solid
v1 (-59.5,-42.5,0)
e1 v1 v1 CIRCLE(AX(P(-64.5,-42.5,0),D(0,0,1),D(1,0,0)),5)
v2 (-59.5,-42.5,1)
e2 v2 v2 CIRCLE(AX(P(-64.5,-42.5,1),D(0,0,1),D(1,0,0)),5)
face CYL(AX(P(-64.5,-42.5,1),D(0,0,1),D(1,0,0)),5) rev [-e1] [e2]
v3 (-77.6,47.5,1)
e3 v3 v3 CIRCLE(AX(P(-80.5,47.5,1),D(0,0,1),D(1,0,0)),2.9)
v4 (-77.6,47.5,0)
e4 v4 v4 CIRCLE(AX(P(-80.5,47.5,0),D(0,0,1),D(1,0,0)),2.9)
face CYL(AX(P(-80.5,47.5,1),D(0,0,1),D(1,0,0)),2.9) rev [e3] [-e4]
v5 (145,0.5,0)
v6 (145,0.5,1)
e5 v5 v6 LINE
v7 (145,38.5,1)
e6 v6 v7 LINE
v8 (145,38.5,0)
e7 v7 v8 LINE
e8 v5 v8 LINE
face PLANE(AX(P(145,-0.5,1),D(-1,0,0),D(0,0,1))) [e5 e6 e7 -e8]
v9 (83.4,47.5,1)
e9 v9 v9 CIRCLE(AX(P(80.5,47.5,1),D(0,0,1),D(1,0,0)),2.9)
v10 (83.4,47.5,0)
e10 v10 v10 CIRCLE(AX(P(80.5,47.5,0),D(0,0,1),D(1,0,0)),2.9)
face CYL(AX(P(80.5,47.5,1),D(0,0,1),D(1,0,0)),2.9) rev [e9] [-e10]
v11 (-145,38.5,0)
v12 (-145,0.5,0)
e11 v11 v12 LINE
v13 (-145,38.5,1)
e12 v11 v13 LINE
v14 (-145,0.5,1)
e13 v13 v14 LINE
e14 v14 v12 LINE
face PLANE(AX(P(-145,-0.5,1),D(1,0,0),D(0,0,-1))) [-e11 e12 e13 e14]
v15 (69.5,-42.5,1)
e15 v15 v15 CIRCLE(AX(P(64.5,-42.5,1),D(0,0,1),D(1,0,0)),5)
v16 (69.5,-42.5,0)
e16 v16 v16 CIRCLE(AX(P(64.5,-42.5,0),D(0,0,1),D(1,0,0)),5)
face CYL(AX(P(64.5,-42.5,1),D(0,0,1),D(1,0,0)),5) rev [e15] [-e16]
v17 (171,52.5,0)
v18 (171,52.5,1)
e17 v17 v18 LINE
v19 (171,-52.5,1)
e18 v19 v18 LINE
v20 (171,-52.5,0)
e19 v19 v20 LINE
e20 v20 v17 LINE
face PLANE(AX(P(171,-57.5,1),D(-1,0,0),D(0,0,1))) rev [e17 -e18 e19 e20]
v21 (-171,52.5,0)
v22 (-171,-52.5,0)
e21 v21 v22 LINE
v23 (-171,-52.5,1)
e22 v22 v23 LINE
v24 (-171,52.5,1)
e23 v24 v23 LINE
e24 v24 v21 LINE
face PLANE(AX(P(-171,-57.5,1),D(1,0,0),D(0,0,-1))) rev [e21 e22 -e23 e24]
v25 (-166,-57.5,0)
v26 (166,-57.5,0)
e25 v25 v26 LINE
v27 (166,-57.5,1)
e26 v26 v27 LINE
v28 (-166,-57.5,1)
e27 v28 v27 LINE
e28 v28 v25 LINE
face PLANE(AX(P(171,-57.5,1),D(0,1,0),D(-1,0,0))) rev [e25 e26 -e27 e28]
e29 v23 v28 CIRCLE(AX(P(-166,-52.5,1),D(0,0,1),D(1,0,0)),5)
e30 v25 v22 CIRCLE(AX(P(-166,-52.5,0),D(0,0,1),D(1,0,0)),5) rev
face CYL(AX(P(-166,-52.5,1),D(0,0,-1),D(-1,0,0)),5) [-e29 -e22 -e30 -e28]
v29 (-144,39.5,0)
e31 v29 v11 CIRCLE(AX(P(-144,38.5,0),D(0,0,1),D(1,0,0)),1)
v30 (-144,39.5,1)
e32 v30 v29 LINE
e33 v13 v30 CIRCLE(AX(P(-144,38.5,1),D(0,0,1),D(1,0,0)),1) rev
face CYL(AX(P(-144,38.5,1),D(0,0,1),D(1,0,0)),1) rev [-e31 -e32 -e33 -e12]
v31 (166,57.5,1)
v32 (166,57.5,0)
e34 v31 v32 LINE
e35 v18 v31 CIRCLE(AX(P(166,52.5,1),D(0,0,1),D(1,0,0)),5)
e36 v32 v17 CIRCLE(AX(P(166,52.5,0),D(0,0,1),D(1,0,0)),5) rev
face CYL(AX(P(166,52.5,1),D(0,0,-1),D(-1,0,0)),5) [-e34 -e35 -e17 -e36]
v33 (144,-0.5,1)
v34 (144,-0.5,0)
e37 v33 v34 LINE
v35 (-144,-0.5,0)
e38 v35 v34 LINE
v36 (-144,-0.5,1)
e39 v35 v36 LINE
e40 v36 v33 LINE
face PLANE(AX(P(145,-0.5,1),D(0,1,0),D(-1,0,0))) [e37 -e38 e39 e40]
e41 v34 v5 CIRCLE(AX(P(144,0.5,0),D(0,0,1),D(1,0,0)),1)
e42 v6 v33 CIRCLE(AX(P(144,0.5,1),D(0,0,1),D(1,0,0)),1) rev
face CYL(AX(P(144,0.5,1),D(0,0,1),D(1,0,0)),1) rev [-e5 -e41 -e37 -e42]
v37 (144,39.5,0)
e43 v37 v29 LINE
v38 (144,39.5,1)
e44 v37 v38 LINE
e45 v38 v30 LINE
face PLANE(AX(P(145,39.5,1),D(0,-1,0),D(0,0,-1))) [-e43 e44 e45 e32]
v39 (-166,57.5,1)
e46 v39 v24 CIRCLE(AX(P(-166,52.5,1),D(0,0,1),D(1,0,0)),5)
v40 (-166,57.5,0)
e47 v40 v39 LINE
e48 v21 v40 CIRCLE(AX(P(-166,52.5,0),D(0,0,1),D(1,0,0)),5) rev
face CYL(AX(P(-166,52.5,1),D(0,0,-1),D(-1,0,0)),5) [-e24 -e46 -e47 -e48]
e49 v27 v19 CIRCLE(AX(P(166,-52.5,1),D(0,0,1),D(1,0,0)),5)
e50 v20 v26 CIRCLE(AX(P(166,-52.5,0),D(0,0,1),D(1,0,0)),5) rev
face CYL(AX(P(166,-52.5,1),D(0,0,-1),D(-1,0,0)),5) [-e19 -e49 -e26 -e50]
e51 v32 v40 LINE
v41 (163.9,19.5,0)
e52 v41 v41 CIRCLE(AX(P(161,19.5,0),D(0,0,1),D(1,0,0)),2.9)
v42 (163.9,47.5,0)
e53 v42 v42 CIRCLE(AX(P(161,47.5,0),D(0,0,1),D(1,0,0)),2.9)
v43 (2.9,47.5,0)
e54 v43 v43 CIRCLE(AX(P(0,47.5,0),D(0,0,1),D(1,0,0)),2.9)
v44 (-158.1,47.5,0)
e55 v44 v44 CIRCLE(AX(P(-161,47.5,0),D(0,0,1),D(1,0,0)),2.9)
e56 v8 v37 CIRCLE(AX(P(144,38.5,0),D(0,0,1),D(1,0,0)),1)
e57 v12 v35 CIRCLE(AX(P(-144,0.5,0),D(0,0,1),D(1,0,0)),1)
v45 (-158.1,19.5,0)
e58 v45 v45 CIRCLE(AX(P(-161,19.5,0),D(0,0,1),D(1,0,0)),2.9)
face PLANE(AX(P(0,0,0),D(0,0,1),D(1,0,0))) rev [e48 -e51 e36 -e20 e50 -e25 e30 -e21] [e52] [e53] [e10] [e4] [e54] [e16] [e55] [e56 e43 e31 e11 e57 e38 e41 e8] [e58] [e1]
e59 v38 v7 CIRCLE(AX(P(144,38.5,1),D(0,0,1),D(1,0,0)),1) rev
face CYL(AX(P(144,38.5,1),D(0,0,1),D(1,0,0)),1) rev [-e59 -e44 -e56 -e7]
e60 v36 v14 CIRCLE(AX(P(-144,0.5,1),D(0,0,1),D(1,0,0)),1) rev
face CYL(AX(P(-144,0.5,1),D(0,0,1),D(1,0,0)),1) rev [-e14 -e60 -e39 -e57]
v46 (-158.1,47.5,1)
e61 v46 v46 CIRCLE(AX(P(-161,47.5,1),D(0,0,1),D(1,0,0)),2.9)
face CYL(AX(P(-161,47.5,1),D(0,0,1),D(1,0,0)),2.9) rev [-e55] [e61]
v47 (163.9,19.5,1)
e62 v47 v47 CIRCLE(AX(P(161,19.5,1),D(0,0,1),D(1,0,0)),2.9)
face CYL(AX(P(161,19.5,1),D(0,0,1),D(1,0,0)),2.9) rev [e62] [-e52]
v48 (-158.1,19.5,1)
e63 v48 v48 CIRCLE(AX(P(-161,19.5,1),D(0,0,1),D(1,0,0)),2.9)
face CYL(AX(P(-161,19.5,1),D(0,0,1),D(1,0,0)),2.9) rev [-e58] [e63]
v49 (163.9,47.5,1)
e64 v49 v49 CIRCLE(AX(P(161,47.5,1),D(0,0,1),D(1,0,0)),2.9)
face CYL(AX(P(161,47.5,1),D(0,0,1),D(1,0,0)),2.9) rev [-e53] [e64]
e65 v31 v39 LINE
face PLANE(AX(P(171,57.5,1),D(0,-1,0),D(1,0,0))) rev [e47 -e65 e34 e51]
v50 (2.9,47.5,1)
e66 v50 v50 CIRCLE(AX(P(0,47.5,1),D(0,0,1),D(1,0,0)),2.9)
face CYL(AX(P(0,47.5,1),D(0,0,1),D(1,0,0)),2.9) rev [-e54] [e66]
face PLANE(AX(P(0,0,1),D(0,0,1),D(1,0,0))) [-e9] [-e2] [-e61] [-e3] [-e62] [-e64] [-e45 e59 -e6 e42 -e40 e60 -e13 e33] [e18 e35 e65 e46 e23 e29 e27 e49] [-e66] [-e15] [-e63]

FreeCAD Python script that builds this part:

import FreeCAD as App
import Part
import Sketcher


def edges_at(feature, points):
    """Names of the edges that pass closest to the given points."""
    edges = feature.Shape.Edges
    near = lambda p: min(range(len(edges)), key=lambda i: edges[i].distToShape(Part.Vertex(*p))[0])
    return sorted({f"Edge{near(p) + 1}" for p in points})

doc = App.newDocument("Part")
body = doc.addObject("PartDesign::Body", "Body")

sketch1 = body.newObject("Sketcher::SketchObject", "Sketch")
sketch1.AttachmentSupport = (doc.getObject("XY_Plane"), [""])
sketch1.MapMode = "FlatFace"
sketch1.addGeometry(Part.LineSegment(App.Vector(-171, 58, 0), App.Vector(-171, -58, 0)), False)
sketch1.addGeometry(Part.LineSegment(App.Vector(-171, -58, 0), App.Vector(171, -58, 0)), False)
sketch1.addGeometry(Part.LineSegment(App.Vector(171, -58, 0), App.Vector(171, 58, 0)), False)
sketch1.addGeometry(Part.LineSegment(App.Vector(171, 58, 0), App.Vector(-171, 58, 0)), False)
sketch1.addGeometry(Part.LineSegment(App.Vector(145, 0, 0), App.Vector(-145, 0, 0)), False)
sketch1.addGeometry(Part.LineSegment(App.Vector(-145, 0, 0), App.Vector(-145, 40, 0)), False)
sketch1.addGeometry(Part.LineSegment(App.Vector(-145, 40, 0), App.Vector(145, 40, 0)), False)
sketch1.addGeometry(Part.LineSegment(App.Vector(145, 40, 0), App.Vector(145, 0, 0)), False)
sketch1.addConstraint(Sketcher.Constraint("Coincident", 0, 2, 1, 1))
sketch1.addConstraint(Sketcher.Constraint("Coincident", 1, 2, 2, 1))
sketch1.addConstraint(Sketcher.Constraint("Coincident", 2, 2, 3, 1))
sketch1.addConstraint(Sketcher.Constraint("Coincident", 3, 2, 0, 1))
sketch1.addConstraint(Sketcher.Constraint("Coincident", 4, 2, 5, 1))
sketch1.addConstraint(Sketcher.Constraint("Coincident", 5, 2, 6, 1))
sketch1.addConstraint(Sketcher.Constraint("Coincident", 6, 2, 7, 1))
sketch1.addConstraint(Sketcher.Constraint("Coincident", 7, 2, 4, 1))
sketch1.addConstraint(Sketcher.Constraint("Vertical", 0))
sketch1.addConstraint(Sketcher.Constraint("Horizontal", 1))
sketch1.addConstraint(Sketcher.Constraint("Vertical", 2))
sketch1.addConstraint(Sketcher.Constraint("Horizontal", 3))
sketch1.addConstraint(Sketcher.Constraint("Horizontal", 4))
sketch1.addConstraint(Sketcher.Constraint("Vertical", 5))
sketch1.addConstraint(Sketcher.Constraint("Horizontal", 6))
sketch1.addConstraint(Sketcher.Constraint("Vertical", 7))
sketch1.addConstraint(Sketcher.Constraint("Symmetric", 0, 2, 2, 2, -1, 1))
sketch1.addConstraint(Sketcher.Constraint("DistanceX", 1, 1, 1, 2, 342.0))
sketch1.addConstraint(Sketcher.Constraint("DistanceX", 4, 2, 4, 1, 290.0))
sketch1.addConstraint(Sketcher.Constraint("DistanceY", 0, 2, 0, 1, 115.0))
sketch1.addConstraint(Sketcher.Constraint("DistanceY", 5, 1, 5, 2, 40.0))
sketch1.addConstraint(Sketcher.Constraint("DistanceX", 4, 2, -1, 1, 145.0))
sketch1.addConstraint(Sketcher.Constraint("DistanceY", 0, 2, 4, 2, 57.0))
pad1 = body.newObject("PartDesign::Pad", "Pad")
pad1.Profile = sketch1
pad1.Length = 1
doc.recompute()

fillet = body.newObject("PartDesign::Fillet", "Fillet")
fillet.Base = (pad1, edges_at(pad1, [
    (-171, 57.5, 0.5),
    (171, 57.5, 0.5),
    (171, -57.5, 0.5),
    (-171, -57.5, 0.5),
]))
fillet.Radius = 5
doc.recompute()

fillet2 = body.newObject("PartDesign::Fillet", "Fillet001")
fillet2.Base = (fillet, edges_at(fillet, [
    (-145, -0.5, 0.5),
    (145, -0.5, 0.5),
    (145, 39.5, 0.5),
    (-145, 39.5, 0.5),
]))
fillet2.Radius = 1

sketch2 = body.newObject("Sketcher::SketchObject", "Sketch001")
sketch2.AttachmentSupport = (doc.getObject("XY_Plane"), [""])
sketch2.MapMode = "FlatFace"
sketch2.AttachmentOffset = App.Placement(App.Vector(0, 0, 1), App.Rotation())
sketch2.addGeometry(Part.Circle(App.Vector(-161, 47.5, 0), App.Vector(0, 0, 1), 2.9), False)
sketch2.addGeometry(Part.Circle(App.Vector(-161, 19.5, 0), App.Vector(0, 0, 1), 2.9), False)
sketch2.addGeometry(Part.Circle(App.Vector(-80.5, 47.5, 0), App.Vector(0, 0, 1), 2.9), False)
sketch2.addGeometry(Part.Circle(App.Vector(0, 47.5, 0), App.Vector(0, 0, 1), 2.9), False)
sketch2.addGeometry(Part.Circle(App.Vector(80.5, 47.5, 0), App.Vector(0, 0, 1), 2.9), False)
sketch2.addGeometry(Part.Circle(App.Vector(161, 47.5, 0), App.Vector(0, 0, 1), 2.9), False)
sketch2.addGeometry(Part.Circle(App.Vector(161, 19.5, 0), App.Vector(0, 0, 1), 2.9), False)
sketch2.addConstraint(Sketcher.Constraint("Equal", 0, 1))
sketch2.addConstraint(Sketcher.Constraint("Equal", 1, 2))
sketch2.addConstraint(Sketcher.Constraint("Equal", 2, 3))
sketch2.addConstraint(Sketcher.Constraint("Equal", 3, 4))
sketch2.addConstraint(Sketcher.Constraint("Equal", 4, 5))
sketch2.addConstraint(Sketcher.Constraint("Equal", 5, 6))
sketch2.addConstraint(Sketcher.Constraint("Symmetric", 2, 3, 4, 3, -2))
sketch2.addConstraint(Sketcher.Constraint("Symmetric", 0, 3, 5, 3, -2))
sketch2.addConstraint(Sketcher.Constraint("Symmetric", 1, 3, 6, 3, -2))
sketch2.addConstraint(Sketcher.Constraint("PointOnObject", 3, 3, -2))
sketch2.addConstraint(Sketcher.Constraint("Horizontal", 0, 3, 2, 3))
sketch2.addConstraint(Sketcher.Constraint("Horizontal", 2, 3, 3, 3))
sketch2.addConstraint(Sketcher.Constraint("Vertical", 0, 3, 1, 3))
sketch2.addConstraint(Sketcher.Constraint("Diameter", 0, 5.8))
sketch2.addConstraint(Sketcher.Constraint("DistanceX", 0, 3, -1, 1, 161.0))
sketch2.addConstraint(Sketcher.Constraint("DistanceY", 1, 3, 0, 3, 28.0))
sketch2.addConstraint(Sketcher.Constraint("DistanceX", 2, 3, 4, 3, 161.0))
sketch2.addConstraint(Sketcher.Constraint("DistanceY", -1, 1, 0, 3, 47.5))
doc.recompute()
hole = body.newObject("PartDesign::Hole", "Hole")
hole.Profile = sketch2
hole.ThreadType = "None"
hole.Diameter = 5.8
hole.DepthType = "ThroughAll"

sketch3 = body.newObject("Sketcher::SketchObject", "Sketch002")
sketch3.AttachmentSupport = (doc.getObject("XY_Plane"), [""])
sketch3.MapMode = "FlatFace"
sketch3.AttachmentOffset = App.Placement(App.Vector(0, 0, 1), App.Rotation())
sketch3.addGeometry(Part.Circle(App.Vector(-64, -42, 0), App.Vector(0, 0, 1), 5), False)
sketch3.addGeometry(Part.Circle(App.Vector(64, -42, 0), App.Vector(0, 0, 1), 5), False)
sketch3.addConstraint(Sketcher.Constraint("Equal", 0, 1))
sketch3.addConstraint(Sketcher.Constraint("Symmetric", 0, 3, 1, 3, -2))
sketch3.addConstraint(Sketcher.Constraint("Diameter", 0, 10.0))
sketch3.addConstraint(Sketcher.Constraint("DistanceX", 0, 3, 1, 3, 129.0))
sketch3.addConstraint(Sketcher.Constraint("DistanceY", 0, 3, -1, 1, 42.5))
doc.recompute()
hole2 = body.newObject("PartDesign::Hole", "Hole001")
hole2.Profile = sketch3
hole2.ThreadType = "None"
hole2.Diameter = 10
hole2.DepthType = "ThroughAll"

doc.recompute()
